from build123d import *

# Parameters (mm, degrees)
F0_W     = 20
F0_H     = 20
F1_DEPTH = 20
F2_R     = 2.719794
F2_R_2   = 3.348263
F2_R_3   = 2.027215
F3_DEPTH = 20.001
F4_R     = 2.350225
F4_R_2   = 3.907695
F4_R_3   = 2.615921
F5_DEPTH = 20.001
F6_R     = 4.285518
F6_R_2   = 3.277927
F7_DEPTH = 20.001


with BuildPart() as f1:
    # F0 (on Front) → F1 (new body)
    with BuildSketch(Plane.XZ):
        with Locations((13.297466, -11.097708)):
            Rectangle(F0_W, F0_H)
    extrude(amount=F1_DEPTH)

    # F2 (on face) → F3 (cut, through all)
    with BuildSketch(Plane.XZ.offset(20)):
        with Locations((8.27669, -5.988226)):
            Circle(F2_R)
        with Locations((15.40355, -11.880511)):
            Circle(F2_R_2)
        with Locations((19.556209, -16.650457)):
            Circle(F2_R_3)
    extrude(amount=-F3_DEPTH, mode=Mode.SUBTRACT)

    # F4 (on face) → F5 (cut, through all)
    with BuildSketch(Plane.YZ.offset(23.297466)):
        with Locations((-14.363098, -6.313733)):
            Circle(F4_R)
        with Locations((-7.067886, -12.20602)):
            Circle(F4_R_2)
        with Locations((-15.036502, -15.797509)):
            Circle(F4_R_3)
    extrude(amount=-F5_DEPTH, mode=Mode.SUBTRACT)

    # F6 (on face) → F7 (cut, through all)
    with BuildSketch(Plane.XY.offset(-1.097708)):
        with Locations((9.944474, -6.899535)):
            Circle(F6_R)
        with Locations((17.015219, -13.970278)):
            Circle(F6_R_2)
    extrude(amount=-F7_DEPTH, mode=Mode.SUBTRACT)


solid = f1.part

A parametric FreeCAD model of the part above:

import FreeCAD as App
import Part
import Sketcher

V = App.Vector

doc = App.newDocument("Part")
params = doc.addObject("Spreadsheet::Sheet", "Params")
for row, (alias, value) in enumerate([
    ("sketch1_width", "20 mm"),
    ("pad1_length", "20 mm"),
], start=1):
    params.set(f"A{row}", alias)
    params.set(f"B{row}", "=" + value)
    params.setAlias(f"B{row}", alias)

body = doc.addObject("PartDesign::Body", "Body")

sketch1 = doc.addObject("Sketcher::SketchObject", "Sketch")
body.addObject(sketch1)
sketch1.AttachmentSupport = (doc.XZ_Plane, [""])
sketch1.MapMode = "FlatFace"
sketch1.addGeometry([
    Part.LineSegment(V(3, -1, 0), V(3, -21, 0)),
    Part.LineSegment(V(3, -21, 0), V(23, -21, 0)),
    Part.LineSegment(V(23, -21, 0), V(23, -1, 0)),
    Part.LineSegment(V(23, -1, 0), V(3, -1, 0)),
], False)
sketch1.addConstraint([
    Sketcher.Constraint("Coincident", 0, 2, 1, 1),
    Sketcher.Constraint("Coincident", 1, 2, 2, 1),
    Sketcher.Constraint("Coincident", 2, 2, 3, 1),
    Sketcher.Constraint("Coincident", 3, 2, 0, 1),
    Sketcher.Constraint("Vertical", 0),
    Sketcher.Constraint("Horizontal", 1),
    Sketcher.Constraint("Vertical", 2),
    Sketcher.Constraint("Horizontal", 3),
    Sketcher.Constraint("Equal", 3, 0),
    Sketcher.Constraint("DistanceX", 1, 1, 1, 2, 20.0),
    Sketcher.Constraint("DistanceY", 0, 2, -1, 1, 21.097708),
    Sketcher.Constraint("DistanceX", -1, 1, 0, 2, 3.297466),
])
sketch1.setExpression("Constraints[9]", "Params.sketch1_width")
pad1 = doc.addObject("PartDesign::Pad", "Pad")
body.addObject(pad1)
pad1.Profile = sketch1
pad1.setExpression("Length", "Params.pad1_length")

sketch2 = doc.addObject("Sketcher::SketchObject", "Sketch001")
body.addObject(sketch2)
sketch2.AttachmentSupport = (doc.XZ_Plane, [""])
sketch2.MapMode = "FlatFace"
sketch2.AttachmentOffset = App.Placement(V(0, 0, 20), App.Rotation())
sketch2.addGeometry([
    Part.Circle(V(8.3, -6, 0), V(0, 0, 1), 2.7),
    Part.Circle(V(15.4, -11.9, 0), V(0, 0, 1), 3.3),
    Part.Circle(V(19.6, -16.7, 0), V(0, 0, 1), 2),
], False)
sketch2.addConstraint([
    Sketcher.Constraint("Diameter", 2, 4.05443),
    Sketcher.Constraint("Diameter", 0, 5.439588),
    Sketcher.Constraint("Diameter", 1, 6.696526),
    Sketcher.Constraint("DistanceX", -1, 1, 0, 3, 8.27669),
    Sketcher.Constraint("DistanceX", -1, 1, 1, 3, 15.40355),
    Sketcher.Constraint("DistanceY", 1, 3, -1, 1, 11.880511),
    Sketcher.Constraint("DistanceX", -1, 1, 2, 3, 19.556209),
    Sketcher.Constraint("DistanceY", 2, 3, 0, 3, 10.662231),
    Sketcher.Constraint("DistanceY", 0, 3, -1, 1, 5.988226),
])
pocket1 = doc.addObject("PartDesign::Pocket", "Pocket")
body.addObject(pocket1)
pocket1.Profile = sketch2
pocket1.Type = "ThroughAll"

sketch3 = doc.addObject("Sketcher::SketchObject", "Sketch002")
body.addObject(sketch3)
sketch3.AttachmentSupport = (doc.YZ_Plane, [""])
sketch3.MapMode = "FlatFace"
sketch3.AttachmentOffset = App.Placement(V(0, 0, 23.297466), App.Rotation())
sketch3.addGeometry([
    Part.Circle(V(-14.4, -6.3, 0), V(0, 0, 1), 2.4),
    Part.Circle(V(-7.1, -12.2, 0), V(0, 0, 1), 3.9),
    Part.Circle(V(-15, -15.8, 0), V(0, 0, 1), 2.6),
], False)
sketch3.addConstraint([
    Sketcher.Constraint("Diameter", 0, 4.70045),
    Sketcher.Constraint("Diameter", 1, 7.81539),
    Sketcher.Constraint("Diameter", 2, 5.231842),
    Sketcher.Constraint("DistanceX", 0, 3, -1, 1, 14.363098),
    Sketcher.Constraint("DistanceY", 1, 3, -1, 1, 12.20602),
    Sketcher.Constraint("DistanceY", 2, 3, -1, 1, 15.797509),
    Sketcher.Constraint("DistanceY", 0, 3, -1, 1, 6.313733),
    Sketcher.Constraint("DistanceX", 1, 3, -1, 1, 7.067886),
    Sketcher.Constraint("DistanceX", 2, 3, -1, 1, 15.036502),
])
pocket2 = doc.addObject("PartDesign::Pocket", "Pocket001")
body.addObject(pocket2)
pocket2.Profile = sketch3
pocket2.Type = "ThroughAll"

sketch4 = doc.addObject("Sketcher::SketchObject", "Sketch003")
body.addObject(sketch4)
sketch4.AttachmentSupport = (doc.XY_Plane, [""])
sketch4.MapMode = "FlatFace"
sketch4.AttachmentOffset = App.Placement(V(0, 0, -1.097708), App.Rotation())
sketch4.addGeometry([
    Part.Circle(V(9.9, -6.9, 0), V(0, 0, 1), 4.3),
    Part.Circle(V(17, -14, 0), V(0, 0, 1), 3.3),
], False)
sketch4.addConstraint([
    Sketcher.Constraint("Diameter", 0, 8.571036),
    Sketcher.Constraint("Diameter", 1, 6.555854),
    Sketcher.Constraint("DistanceX", -1, 1, 1, 3, 17.015219),
    Sketcher.Constraint("DistanceX", -1, 1, 0, 3, 9.944474),
    Sketcher.Constraint("DistanceY", 0, 3, -1, 1, 6.899535),
    Sketcher.Constraint("DistanceY", 1, 3, -1, 1, 13.970278),
])
pocket3 = doc.addObject("PartDesign::Pocket", "Pocket002")
body.addObject(pocket3)
pocket3.Profile = sketch4
pocket3.Type = "ThroughAll"

doc.recompute()
